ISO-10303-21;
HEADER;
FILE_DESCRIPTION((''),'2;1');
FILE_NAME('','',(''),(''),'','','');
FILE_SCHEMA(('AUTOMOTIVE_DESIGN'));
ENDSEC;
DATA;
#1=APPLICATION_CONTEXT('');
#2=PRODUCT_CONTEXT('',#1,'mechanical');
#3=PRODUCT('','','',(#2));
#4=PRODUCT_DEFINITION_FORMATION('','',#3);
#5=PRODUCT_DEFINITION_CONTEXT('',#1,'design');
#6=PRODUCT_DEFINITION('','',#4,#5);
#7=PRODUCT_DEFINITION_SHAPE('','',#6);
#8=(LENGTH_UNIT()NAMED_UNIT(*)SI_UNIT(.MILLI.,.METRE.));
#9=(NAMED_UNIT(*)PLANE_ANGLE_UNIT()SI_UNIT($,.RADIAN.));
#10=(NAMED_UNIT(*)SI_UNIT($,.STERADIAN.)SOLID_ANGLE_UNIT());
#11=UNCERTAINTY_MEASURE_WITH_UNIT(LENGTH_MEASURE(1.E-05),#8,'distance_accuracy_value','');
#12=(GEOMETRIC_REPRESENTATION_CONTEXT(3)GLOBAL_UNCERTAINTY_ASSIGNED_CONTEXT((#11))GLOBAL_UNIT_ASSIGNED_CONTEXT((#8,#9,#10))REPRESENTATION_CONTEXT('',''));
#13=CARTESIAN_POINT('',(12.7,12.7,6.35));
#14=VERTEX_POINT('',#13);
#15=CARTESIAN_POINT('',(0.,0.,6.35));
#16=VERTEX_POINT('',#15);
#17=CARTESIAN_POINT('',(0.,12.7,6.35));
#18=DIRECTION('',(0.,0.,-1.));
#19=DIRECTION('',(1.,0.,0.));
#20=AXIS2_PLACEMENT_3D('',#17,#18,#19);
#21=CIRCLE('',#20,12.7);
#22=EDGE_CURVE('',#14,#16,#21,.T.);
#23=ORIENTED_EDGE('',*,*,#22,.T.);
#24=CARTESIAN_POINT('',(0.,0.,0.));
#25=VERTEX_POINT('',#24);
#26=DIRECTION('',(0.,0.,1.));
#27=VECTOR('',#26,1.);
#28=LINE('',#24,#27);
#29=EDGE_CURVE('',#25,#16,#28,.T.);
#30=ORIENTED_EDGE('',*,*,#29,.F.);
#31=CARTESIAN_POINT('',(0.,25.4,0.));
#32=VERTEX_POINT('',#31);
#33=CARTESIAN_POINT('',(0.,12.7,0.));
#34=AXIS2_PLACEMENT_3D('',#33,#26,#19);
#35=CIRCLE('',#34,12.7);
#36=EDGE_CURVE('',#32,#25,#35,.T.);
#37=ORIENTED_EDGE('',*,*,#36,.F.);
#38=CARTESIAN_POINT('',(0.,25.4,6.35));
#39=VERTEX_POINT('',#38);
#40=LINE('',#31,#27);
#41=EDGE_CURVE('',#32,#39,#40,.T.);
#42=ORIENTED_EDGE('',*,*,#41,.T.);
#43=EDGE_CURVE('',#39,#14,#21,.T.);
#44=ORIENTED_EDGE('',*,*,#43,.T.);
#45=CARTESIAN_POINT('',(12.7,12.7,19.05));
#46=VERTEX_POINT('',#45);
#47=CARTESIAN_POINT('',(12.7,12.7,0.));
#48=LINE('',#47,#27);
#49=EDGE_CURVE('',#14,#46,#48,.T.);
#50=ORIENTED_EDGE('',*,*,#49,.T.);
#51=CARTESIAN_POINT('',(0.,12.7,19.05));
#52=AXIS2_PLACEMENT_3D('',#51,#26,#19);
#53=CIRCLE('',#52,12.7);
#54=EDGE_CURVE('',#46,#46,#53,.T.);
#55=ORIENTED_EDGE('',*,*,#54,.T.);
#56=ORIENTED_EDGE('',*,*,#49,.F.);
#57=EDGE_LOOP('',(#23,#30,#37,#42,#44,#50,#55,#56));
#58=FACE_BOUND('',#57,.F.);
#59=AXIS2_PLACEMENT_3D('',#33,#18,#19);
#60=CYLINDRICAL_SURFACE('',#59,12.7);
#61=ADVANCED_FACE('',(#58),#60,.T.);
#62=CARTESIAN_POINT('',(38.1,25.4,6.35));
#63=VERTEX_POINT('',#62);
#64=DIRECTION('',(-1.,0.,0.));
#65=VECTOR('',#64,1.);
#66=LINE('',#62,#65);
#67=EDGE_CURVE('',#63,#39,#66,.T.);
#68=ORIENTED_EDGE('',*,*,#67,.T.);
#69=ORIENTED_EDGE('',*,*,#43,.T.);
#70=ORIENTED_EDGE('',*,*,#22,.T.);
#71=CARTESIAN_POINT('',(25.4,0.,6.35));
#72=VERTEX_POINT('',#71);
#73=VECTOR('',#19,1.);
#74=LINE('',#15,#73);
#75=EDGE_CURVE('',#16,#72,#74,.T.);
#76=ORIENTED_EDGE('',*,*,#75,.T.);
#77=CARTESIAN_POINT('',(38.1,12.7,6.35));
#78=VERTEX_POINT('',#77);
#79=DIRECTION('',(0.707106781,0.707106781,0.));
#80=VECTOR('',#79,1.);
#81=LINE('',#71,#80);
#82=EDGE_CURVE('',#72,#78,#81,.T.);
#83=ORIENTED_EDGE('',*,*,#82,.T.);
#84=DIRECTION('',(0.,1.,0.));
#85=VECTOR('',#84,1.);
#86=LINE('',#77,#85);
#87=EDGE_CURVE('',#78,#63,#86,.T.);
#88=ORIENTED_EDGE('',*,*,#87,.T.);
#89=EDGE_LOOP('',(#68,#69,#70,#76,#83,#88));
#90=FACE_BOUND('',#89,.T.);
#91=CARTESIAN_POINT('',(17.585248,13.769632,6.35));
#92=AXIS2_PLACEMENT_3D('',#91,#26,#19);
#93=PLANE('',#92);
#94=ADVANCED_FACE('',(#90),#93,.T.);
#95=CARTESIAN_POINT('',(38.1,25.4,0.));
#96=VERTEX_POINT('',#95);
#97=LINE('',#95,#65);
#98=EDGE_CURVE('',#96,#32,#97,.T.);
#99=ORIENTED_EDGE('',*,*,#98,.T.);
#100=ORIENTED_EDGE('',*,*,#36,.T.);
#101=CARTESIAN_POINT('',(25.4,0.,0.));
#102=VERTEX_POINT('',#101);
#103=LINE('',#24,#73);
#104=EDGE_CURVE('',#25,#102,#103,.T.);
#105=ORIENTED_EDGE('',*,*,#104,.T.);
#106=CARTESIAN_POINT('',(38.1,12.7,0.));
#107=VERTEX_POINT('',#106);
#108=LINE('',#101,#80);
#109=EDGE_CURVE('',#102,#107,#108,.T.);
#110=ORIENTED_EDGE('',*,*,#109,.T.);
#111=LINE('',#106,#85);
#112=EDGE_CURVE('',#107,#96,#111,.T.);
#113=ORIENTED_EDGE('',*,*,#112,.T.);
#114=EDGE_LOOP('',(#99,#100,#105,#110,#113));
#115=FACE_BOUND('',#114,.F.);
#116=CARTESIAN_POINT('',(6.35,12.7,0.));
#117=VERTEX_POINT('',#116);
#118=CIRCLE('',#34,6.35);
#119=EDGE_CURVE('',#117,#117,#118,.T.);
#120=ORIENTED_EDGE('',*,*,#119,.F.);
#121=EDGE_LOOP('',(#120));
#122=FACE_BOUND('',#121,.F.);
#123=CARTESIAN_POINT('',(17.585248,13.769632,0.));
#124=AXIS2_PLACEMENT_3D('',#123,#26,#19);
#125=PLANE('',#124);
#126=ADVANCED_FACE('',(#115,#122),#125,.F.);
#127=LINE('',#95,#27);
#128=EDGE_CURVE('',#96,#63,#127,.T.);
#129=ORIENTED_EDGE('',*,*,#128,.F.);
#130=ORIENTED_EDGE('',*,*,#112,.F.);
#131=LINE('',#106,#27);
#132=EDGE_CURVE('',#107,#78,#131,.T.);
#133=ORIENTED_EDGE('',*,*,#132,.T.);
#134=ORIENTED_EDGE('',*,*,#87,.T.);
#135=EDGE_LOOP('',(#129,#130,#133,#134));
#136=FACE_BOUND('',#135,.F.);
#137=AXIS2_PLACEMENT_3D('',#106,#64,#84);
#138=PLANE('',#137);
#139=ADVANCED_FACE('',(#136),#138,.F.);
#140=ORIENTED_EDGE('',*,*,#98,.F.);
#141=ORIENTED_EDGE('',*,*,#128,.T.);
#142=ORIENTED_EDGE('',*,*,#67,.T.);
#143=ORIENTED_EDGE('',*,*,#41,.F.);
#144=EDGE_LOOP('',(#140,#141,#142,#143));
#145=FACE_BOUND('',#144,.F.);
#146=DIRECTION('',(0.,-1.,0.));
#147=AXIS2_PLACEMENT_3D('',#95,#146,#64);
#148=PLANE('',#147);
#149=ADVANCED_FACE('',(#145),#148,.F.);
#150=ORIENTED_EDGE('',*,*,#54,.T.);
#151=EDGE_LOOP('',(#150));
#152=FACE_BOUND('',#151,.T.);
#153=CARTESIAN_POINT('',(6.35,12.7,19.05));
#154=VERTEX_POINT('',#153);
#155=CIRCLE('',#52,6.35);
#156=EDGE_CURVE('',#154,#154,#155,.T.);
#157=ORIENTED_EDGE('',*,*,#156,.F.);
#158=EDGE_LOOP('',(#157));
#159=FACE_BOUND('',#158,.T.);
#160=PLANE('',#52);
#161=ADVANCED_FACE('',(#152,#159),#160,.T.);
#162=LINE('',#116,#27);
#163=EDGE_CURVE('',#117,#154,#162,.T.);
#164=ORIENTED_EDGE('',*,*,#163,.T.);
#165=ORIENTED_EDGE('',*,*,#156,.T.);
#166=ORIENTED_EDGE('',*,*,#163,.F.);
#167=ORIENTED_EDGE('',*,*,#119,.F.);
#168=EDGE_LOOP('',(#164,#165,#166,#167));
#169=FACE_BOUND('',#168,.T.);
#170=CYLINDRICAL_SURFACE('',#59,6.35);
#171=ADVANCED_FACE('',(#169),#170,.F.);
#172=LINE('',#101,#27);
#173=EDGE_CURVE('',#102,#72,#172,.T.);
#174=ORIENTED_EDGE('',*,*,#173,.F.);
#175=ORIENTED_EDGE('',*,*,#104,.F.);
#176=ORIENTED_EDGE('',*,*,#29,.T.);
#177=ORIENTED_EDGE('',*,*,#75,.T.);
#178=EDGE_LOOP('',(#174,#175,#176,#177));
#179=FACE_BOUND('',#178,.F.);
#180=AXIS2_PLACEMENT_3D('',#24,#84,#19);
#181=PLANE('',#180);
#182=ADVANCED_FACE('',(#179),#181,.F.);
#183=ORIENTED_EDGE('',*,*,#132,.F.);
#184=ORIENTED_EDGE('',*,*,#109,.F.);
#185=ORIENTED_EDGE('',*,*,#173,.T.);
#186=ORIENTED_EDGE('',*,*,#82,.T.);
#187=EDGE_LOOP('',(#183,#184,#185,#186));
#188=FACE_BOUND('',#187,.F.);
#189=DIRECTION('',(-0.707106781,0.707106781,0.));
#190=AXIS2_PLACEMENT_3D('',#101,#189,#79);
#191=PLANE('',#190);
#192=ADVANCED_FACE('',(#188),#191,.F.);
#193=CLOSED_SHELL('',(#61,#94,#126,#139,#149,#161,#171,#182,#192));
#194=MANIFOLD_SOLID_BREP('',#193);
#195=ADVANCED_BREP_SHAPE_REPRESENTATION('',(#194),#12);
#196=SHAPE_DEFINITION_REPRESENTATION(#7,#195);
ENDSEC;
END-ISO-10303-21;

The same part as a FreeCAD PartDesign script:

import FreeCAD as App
import Part
import Sketcher
Q = App.Units.Quantity


def add_polygon(sketch, points):
    """Adds a closed chain of lines whose ends are joined by coincident constraints."""
    first, n = sketch.GeometryCount, len(points)
    for a, b in zip(points, points[1:] + points[:1]):
        sketch.addGeometry(Part.LineSegment(App.Vector(*a, 0), App.Vector(*b, 0)), False)
    for i in range(n):
        sketch.addConstraint(Sketcher.Constraint("Coincident", first + i, 2, first + (i + 1) % n, 1))

doc = App.newDocument("Part")
body = doc.addObject("PartDesign::Body", "Body")

sketch1 = doc.addObject("Sketcher::SketchObject", "Sketch")
body.addObject(sketch1)
sketch1.AttachmentSupport = (doc.XY_Plane, [""])
sketch1.MapMode = "FlatFace"
add_polygon(sketch1, [(0, 25), (0, 0), (25, 0), (38, 13), (38, 25)])
sketch1.addConstraint(Sketcher.Constraint("Vertical", 0))
sketch1.addConstraint(Sketcher.Constraint("Horizontal", 1))
sketch1.addConstraint(Sketcher.Constraint("Vertical", 3))
sketch1.addConstraint(Sketcher.Constraint("Horizontal", 4))
sketch1.addConstraint(Sketcher.Constraint("Coincident", 0, 2, -1, 1))
sketch1.addConstraint(Sketcher.Constraint("Equal", 1, 0))
sketch1.addConstraint(Sketcher.Constraint("DistanceX", 1, 1, 1, 2, Q("1 in")))
sketch1.addConstraint(Sketcher.Constraint("DistanceX", 4, 2, 4, 1, Q("1.5 in")))
sketch1.addConstraint(Sketcher.Constraint("DistanceY", 3, 1, 3, 2, Q("0.5 in")))
pad1 = doc.addObject("PartDesign::Pad", "Pad")
body.addObject(pad1)
pad1.Profile = sketch1
pad1.Length = Q("0.25 in")

sketch2 = doc.addObject("Sketcher::SketchObject", "Sketch001")
body.addObject(sketch2)
sketch2.AttachmentSupport = (doc.XY_Plane, [""])
sketch2.MapMode = "FlatFace"
sketch2.addGeometry(Part.Circle(App.Vector(0, 13, 0), App.Vector(0, 0, 1), 13), False)
sketch2.addGeometry(Part.Circle(App.Vector(0, 13, 0), App.Vector(0, 0, 1), 6), False)
sketch2.addConstraint(Sketcher.Constraint("Coincident", 1, 3, 0, 3))
sketch2.addConstraint(Sketcher.Constraint("PointOnObject", 0, 3, -2))
sketch2.addConstraint(Sketcher.Constraint("Diameter", 0, Q("1 in")))
sketch2.addConstraint(Sketcher.Constraint("Diameter", 1, Q("0.5 in")))
sketch2.addConstraint(Sketcher.Constraint("DistanceY", -1, 1, 0, 3, Q("0.5 in")))
pad2 = doc.addObject("PartDesign::Pad", "Pad001")
body.addObject(pad2)
pad2.Profile = sketch2
pad2.Length = Q("0.75 in")

sketch3 = doc.addObject("Sketcher::SketchObject", "Sketch002")
body.addObject(sketch3)
sketch3.AttachmentSupport = (doc.XY_Plane, [""])
sketch3.MapMode = "FlatFace"
sketch3.addGeometry(Part.Circle(App.Vector(0, 13, 0), App.Vector(0, 0, 1), 6), False)
sketch3.addConstraint(Sketcher.Constraint("PointOnObject", 0, 3, -2))
sketch3.addConstraint(Sketcher.Constraint("Diameter", 0, Q("0.5 in")))
sketch3.addConstraint(Sketcher.Constraint("DistanceY", -1, 1, 0, 3, Q("0.5 in")))
pocket1 = doc.addObject("PartDesign::Pocket", "Pocket")
body.addObject(pocket1)
pocket1.Profile = sketch3
pocket1.Length = Q("1 in")
pocket1.Reversed = True

doc.recompute()
